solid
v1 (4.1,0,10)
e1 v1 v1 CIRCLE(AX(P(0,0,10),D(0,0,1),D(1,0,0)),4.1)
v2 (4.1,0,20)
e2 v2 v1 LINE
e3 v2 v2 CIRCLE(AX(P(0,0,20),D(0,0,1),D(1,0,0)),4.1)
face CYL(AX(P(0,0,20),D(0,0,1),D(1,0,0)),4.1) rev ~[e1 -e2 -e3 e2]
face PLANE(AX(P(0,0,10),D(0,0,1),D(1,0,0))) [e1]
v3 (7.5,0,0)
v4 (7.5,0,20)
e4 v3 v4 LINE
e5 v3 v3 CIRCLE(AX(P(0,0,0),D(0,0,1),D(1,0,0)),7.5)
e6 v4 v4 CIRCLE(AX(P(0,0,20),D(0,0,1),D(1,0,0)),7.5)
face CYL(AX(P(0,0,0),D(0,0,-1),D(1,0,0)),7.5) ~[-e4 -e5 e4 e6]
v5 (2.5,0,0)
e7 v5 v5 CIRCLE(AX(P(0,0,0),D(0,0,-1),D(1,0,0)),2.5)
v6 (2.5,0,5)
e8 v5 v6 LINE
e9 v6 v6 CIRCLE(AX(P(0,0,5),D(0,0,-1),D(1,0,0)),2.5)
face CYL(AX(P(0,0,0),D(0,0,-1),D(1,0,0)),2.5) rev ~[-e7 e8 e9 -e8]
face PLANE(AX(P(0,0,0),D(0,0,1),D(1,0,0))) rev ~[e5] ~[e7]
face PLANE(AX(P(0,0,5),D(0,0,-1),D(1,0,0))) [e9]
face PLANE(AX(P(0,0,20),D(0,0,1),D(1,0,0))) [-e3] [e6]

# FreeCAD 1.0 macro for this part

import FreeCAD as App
import Part
import Sketcher
from FreeCAD import Vector

doc = App.newDocument("Part")
body = doc.addObject("PartDesign::Body", "Body")

# Sketch on XY plane
sketch1 = doc.addObject("Sketcher::SketchObject", "Sketch")
body.addObject(sketch1)
sketch1.AttachmentSupport = (doc.XY_Plane, [""])
sketch1.MapMode = "FlatFace"
sketch1.addGeometry(Part.Circle(Vector(0, 0, 0), Vector(0, 0, 1), 8), False)
sketch1.addConstraint([
    Sketcher.Constraint("Coincident", 0, 3, -1, 1),
    Sketcher.Constraint("Diameter", 0, 15.0),
])
pad1 = doc.addObject("PartDesign::Pad", "Pad")
body.addObject(pad1)
pad1.Profile = sketch1
pad1.Length = 20

# Sketch on XY plane
sketch2 = doc.addObject("Sketcher::SketchObject", "Sketch001")
body.addObject(sketch2)
sketch2.AttachmentSupport = (doc.XY_Plane, [""])
sketch2.MapMode = "FlatFace"
sketch2.AttachmentOffset = App.Placement(Vector(0, 0, 20), App.Rotation())
sketch2.addGeometry(Part.Circle(Vector(0, 0, 0), Vector(0, 0, 1), 4.1), False)
sketch2.addConstraint([
    Sketcher.Constraint("Coincident", 0, 3, -1, 1),
    Sketcher.Constraint("Diameter", 0, 8.2),
])
pocket1 = doc.addObject("PartDesign::Pocket", "Pocket")
body.addObject(pocket1)
pocket1.Profile = sketch2
pocket1.Length = 10

# Sketch on XY plane
sketch3 = doc.addObject("Sketcher::SketchObject", "Sketch002")
body.addObject(sketch3)
sketch3.AttachmentSupport = (doc.XY_Plane, [""])
sketch3.MapMode = "FlatFace"
sketch3.addGeometry(Part.Circle(Vector(0, 0, 0), Vector(0, 0, 1), 2.5), False)
sketch3.addConstraint([
    Sketcher.Constraint("Coincident", 0, 3, -1, 1),
    Sketcher.Constraint("Diameter", 0, 5.0),
])
pocket2 = doc.addObject("PartDesign::Pocket", "Pocket001")
body.addObject(pocket2)
pocket2.Profile = sketch3
pocket2.Length = 5
pocket2.Reversed = True

doc.recompute()
